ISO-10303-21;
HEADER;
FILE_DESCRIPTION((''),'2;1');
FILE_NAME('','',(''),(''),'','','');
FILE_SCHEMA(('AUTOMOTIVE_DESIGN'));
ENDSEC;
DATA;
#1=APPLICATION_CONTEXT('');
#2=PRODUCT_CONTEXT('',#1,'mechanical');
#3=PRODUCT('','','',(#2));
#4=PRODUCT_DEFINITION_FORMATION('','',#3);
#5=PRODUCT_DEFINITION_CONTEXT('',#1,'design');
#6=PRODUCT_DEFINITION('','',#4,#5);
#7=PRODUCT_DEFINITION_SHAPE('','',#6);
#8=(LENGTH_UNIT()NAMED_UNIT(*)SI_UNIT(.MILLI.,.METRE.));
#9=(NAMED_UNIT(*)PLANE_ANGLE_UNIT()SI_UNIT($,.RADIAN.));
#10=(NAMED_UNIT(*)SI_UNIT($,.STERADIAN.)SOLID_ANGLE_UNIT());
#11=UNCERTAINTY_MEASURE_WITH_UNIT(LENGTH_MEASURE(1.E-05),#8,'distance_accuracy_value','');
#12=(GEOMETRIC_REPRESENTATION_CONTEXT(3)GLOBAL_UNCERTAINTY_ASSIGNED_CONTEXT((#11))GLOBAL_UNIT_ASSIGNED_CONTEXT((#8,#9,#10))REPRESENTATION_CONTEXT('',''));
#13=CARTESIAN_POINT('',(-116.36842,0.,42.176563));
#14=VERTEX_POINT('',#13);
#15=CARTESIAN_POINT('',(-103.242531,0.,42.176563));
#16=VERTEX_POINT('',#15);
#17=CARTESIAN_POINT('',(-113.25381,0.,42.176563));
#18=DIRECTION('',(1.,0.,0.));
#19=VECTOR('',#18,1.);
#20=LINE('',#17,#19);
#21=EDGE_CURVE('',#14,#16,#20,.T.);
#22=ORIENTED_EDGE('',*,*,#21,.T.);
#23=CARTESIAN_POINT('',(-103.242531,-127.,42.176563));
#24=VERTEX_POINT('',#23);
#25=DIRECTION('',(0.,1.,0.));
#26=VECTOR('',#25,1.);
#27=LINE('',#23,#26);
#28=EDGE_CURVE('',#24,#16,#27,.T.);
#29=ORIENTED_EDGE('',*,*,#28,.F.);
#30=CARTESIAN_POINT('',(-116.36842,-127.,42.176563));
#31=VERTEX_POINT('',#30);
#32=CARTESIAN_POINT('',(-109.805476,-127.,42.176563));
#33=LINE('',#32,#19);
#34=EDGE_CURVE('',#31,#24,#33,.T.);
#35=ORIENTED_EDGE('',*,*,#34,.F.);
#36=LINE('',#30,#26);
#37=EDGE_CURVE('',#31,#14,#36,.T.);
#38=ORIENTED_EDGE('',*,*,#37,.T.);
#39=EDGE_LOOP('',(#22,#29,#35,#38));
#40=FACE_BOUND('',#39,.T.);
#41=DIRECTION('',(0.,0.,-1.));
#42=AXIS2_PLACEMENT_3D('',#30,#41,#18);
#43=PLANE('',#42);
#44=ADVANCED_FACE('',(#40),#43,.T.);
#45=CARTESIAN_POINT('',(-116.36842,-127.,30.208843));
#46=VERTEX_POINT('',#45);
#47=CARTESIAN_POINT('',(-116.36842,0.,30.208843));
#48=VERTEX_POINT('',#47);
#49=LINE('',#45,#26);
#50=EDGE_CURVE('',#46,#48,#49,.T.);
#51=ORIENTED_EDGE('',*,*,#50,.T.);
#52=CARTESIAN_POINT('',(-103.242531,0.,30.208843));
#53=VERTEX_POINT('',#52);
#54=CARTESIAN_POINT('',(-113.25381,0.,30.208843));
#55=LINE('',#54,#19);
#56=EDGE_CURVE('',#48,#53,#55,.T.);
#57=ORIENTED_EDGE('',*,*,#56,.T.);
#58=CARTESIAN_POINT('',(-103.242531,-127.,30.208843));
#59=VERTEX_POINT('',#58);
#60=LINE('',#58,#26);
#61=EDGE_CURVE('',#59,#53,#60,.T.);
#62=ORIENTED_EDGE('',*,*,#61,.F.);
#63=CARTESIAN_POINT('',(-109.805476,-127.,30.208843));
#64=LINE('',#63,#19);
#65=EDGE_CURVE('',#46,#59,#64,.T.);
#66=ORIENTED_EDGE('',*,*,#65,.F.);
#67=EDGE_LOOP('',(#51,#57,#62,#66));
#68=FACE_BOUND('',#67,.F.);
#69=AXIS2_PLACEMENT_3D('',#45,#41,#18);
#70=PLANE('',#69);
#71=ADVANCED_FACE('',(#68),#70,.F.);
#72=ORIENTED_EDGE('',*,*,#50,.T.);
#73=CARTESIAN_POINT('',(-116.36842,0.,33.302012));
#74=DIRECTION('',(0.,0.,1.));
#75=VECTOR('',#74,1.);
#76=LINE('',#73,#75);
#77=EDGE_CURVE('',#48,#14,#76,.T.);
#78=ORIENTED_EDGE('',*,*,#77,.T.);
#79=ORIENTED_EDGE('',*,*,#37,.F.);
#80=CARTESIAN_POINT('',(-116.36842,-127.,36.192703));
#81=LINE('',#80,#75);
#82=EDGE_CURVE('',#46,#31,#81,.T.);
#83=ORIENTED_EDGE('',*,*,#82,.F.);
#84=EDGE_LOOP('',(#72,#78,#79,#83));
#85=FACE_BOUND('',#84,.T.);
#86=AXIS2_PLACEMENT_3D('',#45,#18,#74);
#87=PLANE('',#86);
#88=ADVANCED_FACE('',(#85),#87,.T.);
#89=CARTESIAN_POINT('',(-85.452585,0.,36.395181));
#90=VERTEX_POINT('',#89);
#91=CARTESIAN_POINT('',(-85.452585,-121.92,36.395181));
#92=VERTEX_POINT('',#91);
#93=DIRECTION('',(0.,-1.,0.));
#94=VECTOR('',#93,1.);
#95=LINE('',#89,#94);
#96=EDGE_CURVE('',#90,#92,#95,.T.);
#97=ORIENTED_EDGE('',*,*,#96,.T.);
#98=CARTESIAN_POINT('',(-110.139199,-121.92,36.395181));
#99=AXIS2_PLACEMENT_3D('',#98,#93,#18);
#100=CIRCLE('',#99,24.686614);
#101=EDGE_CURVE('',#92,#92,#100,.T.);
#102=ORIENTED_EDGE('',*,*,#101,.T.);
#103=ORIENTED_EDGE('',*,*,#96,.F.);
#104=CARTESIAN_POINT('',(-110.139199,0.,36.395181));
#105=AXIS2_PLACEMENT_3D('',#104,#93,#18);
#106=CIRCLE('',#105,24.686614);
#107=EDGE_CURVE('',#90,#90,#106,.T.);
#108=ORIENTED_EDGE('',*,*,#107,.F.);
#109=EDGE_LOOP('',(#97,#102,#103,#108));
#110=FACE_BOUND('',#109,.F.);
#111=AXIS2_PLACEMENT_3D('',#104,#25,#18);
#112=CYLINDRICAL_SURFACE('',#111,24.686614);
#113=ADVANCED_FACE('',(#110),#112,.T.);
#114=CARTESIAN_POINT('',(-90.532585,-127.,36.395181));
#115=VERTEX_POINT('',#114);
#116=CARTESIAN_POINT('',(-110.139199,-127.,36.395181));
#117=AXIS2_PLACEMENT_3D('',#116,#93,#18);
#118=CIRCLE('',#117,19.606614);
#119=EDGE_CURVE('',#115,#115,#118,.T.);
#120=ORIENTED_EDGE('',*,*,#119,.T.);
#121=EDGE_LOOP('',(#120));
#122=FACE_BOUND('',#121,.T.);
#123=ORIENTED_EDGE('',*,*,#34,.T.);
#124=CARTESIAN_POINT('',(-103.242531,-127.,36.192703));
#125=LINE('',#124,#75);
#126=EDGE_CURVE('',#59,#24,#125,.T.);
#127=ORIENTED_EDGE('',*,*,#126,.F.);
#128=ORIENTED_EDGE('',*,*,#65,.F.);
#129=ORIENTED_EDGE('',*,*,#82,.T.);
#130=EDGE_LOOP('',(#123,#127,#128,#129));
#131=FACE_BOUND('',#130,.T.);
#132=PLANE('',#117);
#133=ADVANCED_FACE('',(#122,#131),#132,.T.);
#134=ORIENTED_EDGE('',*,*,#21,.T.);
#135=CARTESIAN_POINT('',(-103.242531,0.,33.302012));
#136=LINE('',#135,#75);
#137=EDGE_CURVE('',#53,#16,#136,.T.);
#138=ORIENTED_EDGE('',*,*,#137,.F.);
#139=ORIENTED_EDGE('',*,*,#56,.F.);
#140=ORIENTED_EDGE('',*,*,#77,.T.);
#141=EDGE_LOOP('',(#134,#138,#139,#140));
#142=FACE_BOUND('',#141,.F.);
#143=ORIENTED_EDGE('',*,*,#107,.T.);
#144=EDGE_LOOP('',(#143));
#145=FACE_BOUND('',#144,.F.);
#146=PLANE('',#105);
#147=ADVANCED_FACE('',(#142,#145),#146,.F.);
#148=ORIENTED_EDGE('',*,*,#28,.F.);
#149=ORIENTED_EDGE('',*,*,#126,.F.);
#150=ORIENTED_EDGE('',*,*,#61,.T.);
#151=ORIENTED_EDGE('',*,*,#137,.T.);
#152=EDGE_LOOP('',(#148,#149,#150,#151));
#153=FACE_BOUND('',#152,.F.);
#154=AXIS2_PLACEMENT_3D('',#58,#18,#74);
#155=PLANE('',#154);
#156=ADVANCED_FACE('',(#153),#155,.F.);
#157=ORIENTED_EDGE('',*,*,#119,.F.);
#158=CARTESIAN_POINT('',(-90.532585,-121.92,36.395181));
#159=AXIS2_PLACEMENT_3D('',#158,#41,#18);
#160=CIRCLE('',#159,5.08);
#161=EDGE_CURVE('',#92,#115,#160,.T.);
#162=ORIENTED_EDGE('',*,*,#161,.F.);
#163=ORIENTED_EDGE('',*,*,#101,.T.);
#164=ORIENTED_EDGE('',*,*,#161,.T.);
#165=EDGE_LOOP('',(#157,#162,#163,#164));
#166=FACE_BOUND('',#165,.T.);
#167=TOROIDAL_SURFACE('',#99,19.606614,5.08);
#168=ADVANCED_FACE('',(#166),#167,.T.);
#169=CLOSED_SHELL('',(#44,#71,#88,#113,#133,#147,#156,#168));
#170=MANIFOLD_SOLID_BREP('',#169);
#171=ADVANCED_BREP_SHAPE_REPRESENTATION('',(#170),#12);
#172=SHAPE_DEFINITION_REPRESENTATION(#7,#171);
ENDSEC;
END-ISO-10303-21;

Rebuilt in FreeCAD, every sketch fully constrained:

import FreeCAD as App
import Part
import Sketcher
from FreeCAD import Vector
Q = App.Units.Quantity


def edges_at(feature, points):
    """Names of the edges that pass closest to the given points."""
    edges = feature.Shape.Edges
    near = lambda p: min(range(len(edges)), key=lambda i: edges[i].distToShape(Part.Vertex(*p))[0])
    return sorted({f"Edge{near(p) + 1}" for p in points})


def add_polygon(sketch, points):
    """Adds a closed chain of lines whose ends are joined by coincident constraints."""
    first, n = sketch.GeometryCount, len(points)
    for a, b in zip(points, points[1:] + points[:1]):
        sketch.addGeometry(Part.LineSegment(App.Vector(*a, 0), App.Vector(*b, 0)), False)
    for i in range(n):
        sketch.addConstraint(Sketcher.Constraint("Coincident", first + i, 2, first + (i + 1) % n, 1))

doc = App.newDocument("Part")
body = doc.addObject("PartDesign::Body", "Body")

# Sketch on XZ plane
sketch1 = doc.addObject("Sketcher::SketchObject", "Sketch")
body.addObject(sketch1)
sketch1.AttachmentSupport = (doc.XZ_Plane, [""])
sketch1.MapMode = "FlatFace"
sketch1.addGeometry(Part.Circle(Vector(-110, 36, 0), Vector(0, 0, 1), 25), False)
sketch1.addConstraint([
    Sketcher.Constraint("Diameter", 0, Q("49.373228 mm")),
    Sketcher.Constraint("DistanceX", 0, 3, -1, 1, Q("110.139199 mm")),
    Sketcher.Constraint("DistanceY", -1, 1, 0, 3, Q("36.395181 mm")),
])
pad1 = doc.addObject("PartDesign::Pad", "Pad")
body.addObject(pad1)
pad1.Profile = sketch1
pad1.Length = Q("5 in")
doc.recompute()

fillet = doc.addObject("PartDesign::Fillet", "Fillet")
body.addObject(fillet)
fillet.Base = (pad1, edges_at(pad1, [(-134.826, -127, 36.395)]))
fillet.Radius = Q("0.2 in")

# Sketch on XZ plane
sketch2 = doc.addObject("Sketcher::SketchObject", "Sketch001")
body.addObject(sketch2)
sketch2.AttachmentSupport = (doc.XZ_Plane, [""])
sketch2.MapMode = "FlatFace"
sketch2.AttachmentOffset = App.Placement(Vector(0, 0, 5 * 25.4), App.Rotation())
add_polygon(sketch2, [(-116, 42), (-116, 30), (-103, 30), (-103, 42)])  # lines 0-3
sketch2.addConstraint([
    Sketcher.Constraint("Vertical", 0),
    Sketcher.Constraint("Horizontal", 1),
    Sketcher.Constraint("Vertical", 2),
    Sketcher.Constraint("Horizontal", 3),
    Sketcher.Constraint("DistanceX", 1, 1, 1, 2, Q("13.125889 mm")),
    Sketcher.Constraint("DistanceY", 0, 2, 0, 1, Q("11.96772 mm")),
    Sketcher.Constraint("DistanceX", 0, 2, -1, 1, Q("116.36842 mm")),
    Sketcher.Constraint("DistanceY", -1, 1, 0, 2, Q("30.208843 mm")),
])
pocket1 = doc.addObject("PartDesign::Pocket", "Pocket")
body.addObject(pocket1)
pocket1.Profile = sketch2
pocket1.Type = "ThroughAll"

doc.recompute()
